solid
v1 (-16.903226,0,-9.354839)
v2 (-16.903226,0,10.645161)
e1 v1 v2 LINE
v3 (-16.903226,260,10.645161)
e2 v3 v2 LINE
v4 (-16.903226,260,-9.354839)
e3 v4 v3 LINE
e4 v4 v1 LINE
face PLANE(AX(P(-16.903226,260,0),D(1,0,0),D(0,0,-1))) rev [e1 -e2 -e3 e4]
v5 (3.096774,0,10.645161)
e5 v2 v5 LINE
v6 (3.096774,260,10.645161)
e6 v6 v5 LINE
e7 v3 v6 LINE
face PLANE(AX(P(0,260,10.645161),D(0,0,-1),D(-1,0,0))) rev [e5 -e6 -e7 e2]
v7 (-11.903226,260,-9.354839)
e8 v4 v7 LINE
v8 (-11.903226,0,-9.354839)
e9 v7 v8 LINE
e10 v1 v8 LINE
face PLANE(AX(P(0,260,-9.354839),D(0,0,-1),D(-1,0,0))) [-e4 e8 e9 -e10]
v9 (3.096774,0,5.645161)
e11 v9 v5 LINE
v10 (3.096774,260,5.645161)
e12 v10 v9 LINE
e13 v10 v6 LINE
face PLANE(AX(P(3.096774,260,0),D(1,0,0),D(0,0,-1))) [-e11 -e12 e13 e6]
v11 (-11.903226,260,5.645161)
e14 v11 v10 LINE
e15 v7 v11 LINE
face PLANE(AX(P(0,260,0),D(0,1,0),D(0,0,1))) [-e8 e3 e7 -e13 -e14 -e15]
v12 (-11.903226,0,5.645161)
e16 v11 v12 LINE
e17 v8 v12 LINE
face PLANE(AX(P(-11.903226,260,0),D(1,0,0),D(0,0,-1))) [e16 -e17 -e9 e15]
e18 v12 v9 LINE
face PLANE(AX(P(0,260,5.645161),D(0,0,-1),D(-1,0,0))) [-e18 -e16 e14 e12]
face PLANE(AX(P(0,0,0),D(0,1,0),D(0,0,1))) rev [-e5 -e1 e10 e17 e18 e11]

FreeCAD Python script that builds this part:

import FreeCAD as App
import Part
import Sketcher
from FreeCAD import Vector

doc = App.newDocument("Part")
body = doc.addObject("PartDesign::Body", "Body")

sketch1 = doc.addObject("Sketcher::SketchObject", "Sketch")
body.addObject(sketch1)
sketch1.AttachmentSupport = (doc.XZ_Plane, [""])
sketch1.MapMode = "FlatFace"
sketch1.addGeometry([
    Part.LineSegment(Vector(-11.9, -9.4, 0), Vector(-16.9, -9.4, 0)),
    Part.LineSegment(Vector(-16.9, -9.4, 0), Vector(-16.9, 10.6, 0)),
    Part.LineSegment(Vector(-16.9, 10.6, 0), Vector(3.1, 10.6, 0)),
    Part.LineSegment(Vector(3.1, 10.6, 0), Vector(3.1, 5.6, 0)),
    Part.LineSegment(Vector(3.1, 5.6, 0), Vector(-11.9, 5.6, 0)),
    Part.LineSegment(Vector(-11.9, 5.6, 0), Vector(-11.9, -9.4, 0)),
], False)
sketch1.addConstraint([
    Sketcher.Constraint("Coincident", 0, 2, 1, 1),
    Sketcher.Constraint("Coincident", 1, 2, 2, 1),
    Sketcher.Constraint("Coincident", 2, 2, 3, 1),
    Sketcher.Constraint("Coincident", 3, 2, 4, 1),
    Sketcher.Constraint("Coincident", 4, 2, 5, 1),
    Sketcher.Constraint("Coincident", 5, 2, 0, 1),
    Sketcher.Constraint("Horizontal", 0),
    Sketcher.Constraint("Vertical", 1),
    Sketcher.Constraint("Horizontal", 2),
    Sketcher.Constraint("Vertical", 3),
    Sketcher.Constraint("Horizontal", 4),
    Sketcher.Constraint("Vertical", 5),
    Sketcher.Constraint("Equal", 2, 1),
    Sketcher.Constraint("Equal", 0, 3),
    Sketcher.Constraint("DistanceX", 0, 2, 0, 1, 5.0),
    Sketcher.Constraint("DistanceX", 2, 1, 2, 2, 20.0),
    Sketcher.Constraint("DistanceY", 0, 2, -1, 1, 9.354839),
    Sketcher.Constraint("DistanceX", 0, 2, -1, 1, 16.903226),
])
pad1 = doc.addObject("PartDesign::Pad", "Pad")
body.addObject(pad1)
pad1.Profile = sketch1
pad1.Length = 260
pad1.Reversed = True

doc.recompute()
